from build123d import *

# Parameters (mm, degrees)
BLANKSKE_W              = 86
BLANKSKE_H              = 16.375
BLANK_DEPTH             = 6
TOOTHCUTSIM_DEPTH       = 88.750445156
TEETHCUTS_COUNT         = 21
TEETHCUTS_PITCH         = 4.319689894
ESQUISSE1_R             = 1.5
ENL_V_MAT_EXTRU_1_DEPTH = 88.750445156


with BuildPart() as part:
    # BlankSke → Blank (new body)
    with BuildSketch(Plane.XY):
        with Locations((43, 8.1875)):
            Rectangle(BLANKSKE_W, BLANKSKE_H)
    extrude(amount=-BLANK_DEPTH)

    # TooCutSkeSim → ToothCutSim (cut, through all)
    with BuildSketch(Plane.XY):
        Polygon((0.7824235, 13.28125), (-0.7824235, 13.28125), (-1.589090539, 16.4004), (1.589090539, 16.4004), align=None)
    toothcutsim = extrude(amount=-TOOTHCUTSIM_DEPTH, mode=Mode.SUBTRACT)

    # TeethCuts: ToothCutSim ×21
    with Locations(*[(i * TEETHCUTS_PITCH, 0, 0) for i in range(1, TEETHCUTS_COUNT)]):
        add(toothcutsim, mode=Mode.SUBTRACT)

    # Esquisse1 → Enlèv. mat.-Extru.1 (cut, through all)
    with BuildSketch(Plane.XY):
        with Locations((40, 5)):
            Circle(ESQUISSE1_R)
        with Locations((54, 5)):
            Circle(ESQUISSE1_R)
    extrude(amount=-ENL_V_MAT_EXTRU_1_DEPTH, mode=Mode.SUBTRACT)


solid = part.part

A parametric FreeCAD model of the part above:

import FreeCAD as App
import Part
import Sketcher
Q = App.Units.Quantity


def add_polygon(sketch, points):
    """Adds a closed chain of lines whose ends are joined by coincident constraints."""
    first, n = sketch.GeometryCount, len(points)
    for a, b in zip(points, points[1:] + points[:1]):
        sketch.addGeometry(Part.LineSegment(App.Vector(*a, 0), App.Vector(*b, 0)), False)
    for i in range(n):
        sketch.addConstraint(Sketcher.Constraint("Coincident", first + i, 2, first + (i + 1) % n, 1))

doc = App.newDocument("Part")
body = doc.addObject("PartDesign::Body", "Body")

sketch1 = body.newObject("Sketcher::SketchObject", "Sketch")
sketch1.AttachmentSupport = (doc.getObject("XY_Plane"), [""])
sketch1.MapMode = "FlatFace"
add_polygon(sketch1, [(0, 16), (0, 0), (86, 0), (86, 16)])
sketch1.addConstraint(Sketcher.Constraint("Vertical", 0))
sketch1.addConstraint(Sketcher.Constraint("Horizontal", 1))
sketch1.addConstraint(Sketcher.Constraint("Vertical", 2))
sketch1.addConstraint(Sketcher.Constraint("Horizontal", 3))
sketch1.addConstraint(Sketcher.Constraint("Coincident", 0, 2, -1, 1))
sketch1.addConstraint(Sketcher.Constraint("DistanceX", 1, 1, 1, 2, 86.0))
sketch1.addConstraint(Sketcher.Constraint("DistanceY", 0, 2, 0, 1, 16.375))
pad1 = body.newObject("PartDesign::Pad", "Pad")
pad1.Profile = sketch1
pad1.Length = 6
pad1.Reversed = True

sketch2 = body.newObject("Sketcher::SketchObject", "Sketch001")
sketch2.AttachmentSupport = (doc.getObject("XY_Plane"), [""])
sketch2.MapMode = "FlatFace"
add_polygon(sketch2, [(-0.8, 13.3), (0.8, 13.3), (1.6, 16.4), (-1.6, 16.4)])
sketch2.addConstraint(Sketcher.Constraint("Horizontal", 0))
sketch2.addConstraint(Sketcher.Constraint("Horizontal", 2))
sketch2.addConstraint(Sketcher.Constraint("Equal", 1, 3))
sketch2.addConstraint(Sketcher.Constraint("Angle", 1, Q("75.5 deg")))
sketch2.addConstraint(Sketcher.Constraint("DistanceX", 2, 2, 2, 1, 3.178181))
sketch2.addConstraint(Sketcher.Constraint("DistanceY", -1, 1, 1, 2, 16.4004))
sketch2.addConstraint(Sketcher.Constraint("Distance", 1, 3.221771))
sketch2.addConstraint(Sketcher.Constraint("DistanceX", -1, 1, 1, 2, 1.589091))
pocket1 = body.newObject("PartDesign::Pocket", "Pocket")
pocket1.Profile = sketch2
pocket1.Type = "ThroughAll"
doc.recompute()

linearpattern = body.newObject("PartDesign::LinearPattern", "LinearPattern")
linearpattern.Originals = [pocket1]
linearpattern.Direction = (doc.getObject("X_Axis"), [""])
linearpattern.Mode = "offset"
linearpattern.Offset = 4.31969
linearpattern.Occurrences = 21
body.Tip = linearpattern

sketch3 = body.newObject("Sketcher::SketchObject", "Sketch002")
sketch3.AttachmentSupport = (doc.getObject("XY_Plane"), [""])
sketch3.MapMode = "FlatFace"
sketch3.addGeometry(Part.Circle(App.Vector(40, 5, 0), App.Vector(0, 0, 1), 1.5), False)
sketch3.addGeometry(Part.Circle(App.Vector(54, 5, 0), App.Vector(0, 0, 1), 1.5), False)
sketch3.addConstraint(Sketcher.Constraint("Equal", 0, 1))
sketch3.addConstraint(Sketcher.Constraint("Horizontal", 0, 3, 1, 3))
sketch3.addConstraint(Sketcher.Constraint("Diameter", 0, 3.0))
sketch3.addConstraint(Sketcher.Constraint("DistanceX", -1, 1, 0, 3, 40.0))
sketch3.addConstraint(Sketcher.Constraint("DistanceY", -1, 1, 0, 3, 5.0))
sketch3.addConstraint(Sketcher.Constraint("DistanceX", -1, 1, 1, 3, 54.0))
pocket2 = body.newObject("PartDesign::Pocket", "Pocket001")
pocket2.Profile = sketch3
pocket2.Type = "ThroughAll"

doc.recompute()
